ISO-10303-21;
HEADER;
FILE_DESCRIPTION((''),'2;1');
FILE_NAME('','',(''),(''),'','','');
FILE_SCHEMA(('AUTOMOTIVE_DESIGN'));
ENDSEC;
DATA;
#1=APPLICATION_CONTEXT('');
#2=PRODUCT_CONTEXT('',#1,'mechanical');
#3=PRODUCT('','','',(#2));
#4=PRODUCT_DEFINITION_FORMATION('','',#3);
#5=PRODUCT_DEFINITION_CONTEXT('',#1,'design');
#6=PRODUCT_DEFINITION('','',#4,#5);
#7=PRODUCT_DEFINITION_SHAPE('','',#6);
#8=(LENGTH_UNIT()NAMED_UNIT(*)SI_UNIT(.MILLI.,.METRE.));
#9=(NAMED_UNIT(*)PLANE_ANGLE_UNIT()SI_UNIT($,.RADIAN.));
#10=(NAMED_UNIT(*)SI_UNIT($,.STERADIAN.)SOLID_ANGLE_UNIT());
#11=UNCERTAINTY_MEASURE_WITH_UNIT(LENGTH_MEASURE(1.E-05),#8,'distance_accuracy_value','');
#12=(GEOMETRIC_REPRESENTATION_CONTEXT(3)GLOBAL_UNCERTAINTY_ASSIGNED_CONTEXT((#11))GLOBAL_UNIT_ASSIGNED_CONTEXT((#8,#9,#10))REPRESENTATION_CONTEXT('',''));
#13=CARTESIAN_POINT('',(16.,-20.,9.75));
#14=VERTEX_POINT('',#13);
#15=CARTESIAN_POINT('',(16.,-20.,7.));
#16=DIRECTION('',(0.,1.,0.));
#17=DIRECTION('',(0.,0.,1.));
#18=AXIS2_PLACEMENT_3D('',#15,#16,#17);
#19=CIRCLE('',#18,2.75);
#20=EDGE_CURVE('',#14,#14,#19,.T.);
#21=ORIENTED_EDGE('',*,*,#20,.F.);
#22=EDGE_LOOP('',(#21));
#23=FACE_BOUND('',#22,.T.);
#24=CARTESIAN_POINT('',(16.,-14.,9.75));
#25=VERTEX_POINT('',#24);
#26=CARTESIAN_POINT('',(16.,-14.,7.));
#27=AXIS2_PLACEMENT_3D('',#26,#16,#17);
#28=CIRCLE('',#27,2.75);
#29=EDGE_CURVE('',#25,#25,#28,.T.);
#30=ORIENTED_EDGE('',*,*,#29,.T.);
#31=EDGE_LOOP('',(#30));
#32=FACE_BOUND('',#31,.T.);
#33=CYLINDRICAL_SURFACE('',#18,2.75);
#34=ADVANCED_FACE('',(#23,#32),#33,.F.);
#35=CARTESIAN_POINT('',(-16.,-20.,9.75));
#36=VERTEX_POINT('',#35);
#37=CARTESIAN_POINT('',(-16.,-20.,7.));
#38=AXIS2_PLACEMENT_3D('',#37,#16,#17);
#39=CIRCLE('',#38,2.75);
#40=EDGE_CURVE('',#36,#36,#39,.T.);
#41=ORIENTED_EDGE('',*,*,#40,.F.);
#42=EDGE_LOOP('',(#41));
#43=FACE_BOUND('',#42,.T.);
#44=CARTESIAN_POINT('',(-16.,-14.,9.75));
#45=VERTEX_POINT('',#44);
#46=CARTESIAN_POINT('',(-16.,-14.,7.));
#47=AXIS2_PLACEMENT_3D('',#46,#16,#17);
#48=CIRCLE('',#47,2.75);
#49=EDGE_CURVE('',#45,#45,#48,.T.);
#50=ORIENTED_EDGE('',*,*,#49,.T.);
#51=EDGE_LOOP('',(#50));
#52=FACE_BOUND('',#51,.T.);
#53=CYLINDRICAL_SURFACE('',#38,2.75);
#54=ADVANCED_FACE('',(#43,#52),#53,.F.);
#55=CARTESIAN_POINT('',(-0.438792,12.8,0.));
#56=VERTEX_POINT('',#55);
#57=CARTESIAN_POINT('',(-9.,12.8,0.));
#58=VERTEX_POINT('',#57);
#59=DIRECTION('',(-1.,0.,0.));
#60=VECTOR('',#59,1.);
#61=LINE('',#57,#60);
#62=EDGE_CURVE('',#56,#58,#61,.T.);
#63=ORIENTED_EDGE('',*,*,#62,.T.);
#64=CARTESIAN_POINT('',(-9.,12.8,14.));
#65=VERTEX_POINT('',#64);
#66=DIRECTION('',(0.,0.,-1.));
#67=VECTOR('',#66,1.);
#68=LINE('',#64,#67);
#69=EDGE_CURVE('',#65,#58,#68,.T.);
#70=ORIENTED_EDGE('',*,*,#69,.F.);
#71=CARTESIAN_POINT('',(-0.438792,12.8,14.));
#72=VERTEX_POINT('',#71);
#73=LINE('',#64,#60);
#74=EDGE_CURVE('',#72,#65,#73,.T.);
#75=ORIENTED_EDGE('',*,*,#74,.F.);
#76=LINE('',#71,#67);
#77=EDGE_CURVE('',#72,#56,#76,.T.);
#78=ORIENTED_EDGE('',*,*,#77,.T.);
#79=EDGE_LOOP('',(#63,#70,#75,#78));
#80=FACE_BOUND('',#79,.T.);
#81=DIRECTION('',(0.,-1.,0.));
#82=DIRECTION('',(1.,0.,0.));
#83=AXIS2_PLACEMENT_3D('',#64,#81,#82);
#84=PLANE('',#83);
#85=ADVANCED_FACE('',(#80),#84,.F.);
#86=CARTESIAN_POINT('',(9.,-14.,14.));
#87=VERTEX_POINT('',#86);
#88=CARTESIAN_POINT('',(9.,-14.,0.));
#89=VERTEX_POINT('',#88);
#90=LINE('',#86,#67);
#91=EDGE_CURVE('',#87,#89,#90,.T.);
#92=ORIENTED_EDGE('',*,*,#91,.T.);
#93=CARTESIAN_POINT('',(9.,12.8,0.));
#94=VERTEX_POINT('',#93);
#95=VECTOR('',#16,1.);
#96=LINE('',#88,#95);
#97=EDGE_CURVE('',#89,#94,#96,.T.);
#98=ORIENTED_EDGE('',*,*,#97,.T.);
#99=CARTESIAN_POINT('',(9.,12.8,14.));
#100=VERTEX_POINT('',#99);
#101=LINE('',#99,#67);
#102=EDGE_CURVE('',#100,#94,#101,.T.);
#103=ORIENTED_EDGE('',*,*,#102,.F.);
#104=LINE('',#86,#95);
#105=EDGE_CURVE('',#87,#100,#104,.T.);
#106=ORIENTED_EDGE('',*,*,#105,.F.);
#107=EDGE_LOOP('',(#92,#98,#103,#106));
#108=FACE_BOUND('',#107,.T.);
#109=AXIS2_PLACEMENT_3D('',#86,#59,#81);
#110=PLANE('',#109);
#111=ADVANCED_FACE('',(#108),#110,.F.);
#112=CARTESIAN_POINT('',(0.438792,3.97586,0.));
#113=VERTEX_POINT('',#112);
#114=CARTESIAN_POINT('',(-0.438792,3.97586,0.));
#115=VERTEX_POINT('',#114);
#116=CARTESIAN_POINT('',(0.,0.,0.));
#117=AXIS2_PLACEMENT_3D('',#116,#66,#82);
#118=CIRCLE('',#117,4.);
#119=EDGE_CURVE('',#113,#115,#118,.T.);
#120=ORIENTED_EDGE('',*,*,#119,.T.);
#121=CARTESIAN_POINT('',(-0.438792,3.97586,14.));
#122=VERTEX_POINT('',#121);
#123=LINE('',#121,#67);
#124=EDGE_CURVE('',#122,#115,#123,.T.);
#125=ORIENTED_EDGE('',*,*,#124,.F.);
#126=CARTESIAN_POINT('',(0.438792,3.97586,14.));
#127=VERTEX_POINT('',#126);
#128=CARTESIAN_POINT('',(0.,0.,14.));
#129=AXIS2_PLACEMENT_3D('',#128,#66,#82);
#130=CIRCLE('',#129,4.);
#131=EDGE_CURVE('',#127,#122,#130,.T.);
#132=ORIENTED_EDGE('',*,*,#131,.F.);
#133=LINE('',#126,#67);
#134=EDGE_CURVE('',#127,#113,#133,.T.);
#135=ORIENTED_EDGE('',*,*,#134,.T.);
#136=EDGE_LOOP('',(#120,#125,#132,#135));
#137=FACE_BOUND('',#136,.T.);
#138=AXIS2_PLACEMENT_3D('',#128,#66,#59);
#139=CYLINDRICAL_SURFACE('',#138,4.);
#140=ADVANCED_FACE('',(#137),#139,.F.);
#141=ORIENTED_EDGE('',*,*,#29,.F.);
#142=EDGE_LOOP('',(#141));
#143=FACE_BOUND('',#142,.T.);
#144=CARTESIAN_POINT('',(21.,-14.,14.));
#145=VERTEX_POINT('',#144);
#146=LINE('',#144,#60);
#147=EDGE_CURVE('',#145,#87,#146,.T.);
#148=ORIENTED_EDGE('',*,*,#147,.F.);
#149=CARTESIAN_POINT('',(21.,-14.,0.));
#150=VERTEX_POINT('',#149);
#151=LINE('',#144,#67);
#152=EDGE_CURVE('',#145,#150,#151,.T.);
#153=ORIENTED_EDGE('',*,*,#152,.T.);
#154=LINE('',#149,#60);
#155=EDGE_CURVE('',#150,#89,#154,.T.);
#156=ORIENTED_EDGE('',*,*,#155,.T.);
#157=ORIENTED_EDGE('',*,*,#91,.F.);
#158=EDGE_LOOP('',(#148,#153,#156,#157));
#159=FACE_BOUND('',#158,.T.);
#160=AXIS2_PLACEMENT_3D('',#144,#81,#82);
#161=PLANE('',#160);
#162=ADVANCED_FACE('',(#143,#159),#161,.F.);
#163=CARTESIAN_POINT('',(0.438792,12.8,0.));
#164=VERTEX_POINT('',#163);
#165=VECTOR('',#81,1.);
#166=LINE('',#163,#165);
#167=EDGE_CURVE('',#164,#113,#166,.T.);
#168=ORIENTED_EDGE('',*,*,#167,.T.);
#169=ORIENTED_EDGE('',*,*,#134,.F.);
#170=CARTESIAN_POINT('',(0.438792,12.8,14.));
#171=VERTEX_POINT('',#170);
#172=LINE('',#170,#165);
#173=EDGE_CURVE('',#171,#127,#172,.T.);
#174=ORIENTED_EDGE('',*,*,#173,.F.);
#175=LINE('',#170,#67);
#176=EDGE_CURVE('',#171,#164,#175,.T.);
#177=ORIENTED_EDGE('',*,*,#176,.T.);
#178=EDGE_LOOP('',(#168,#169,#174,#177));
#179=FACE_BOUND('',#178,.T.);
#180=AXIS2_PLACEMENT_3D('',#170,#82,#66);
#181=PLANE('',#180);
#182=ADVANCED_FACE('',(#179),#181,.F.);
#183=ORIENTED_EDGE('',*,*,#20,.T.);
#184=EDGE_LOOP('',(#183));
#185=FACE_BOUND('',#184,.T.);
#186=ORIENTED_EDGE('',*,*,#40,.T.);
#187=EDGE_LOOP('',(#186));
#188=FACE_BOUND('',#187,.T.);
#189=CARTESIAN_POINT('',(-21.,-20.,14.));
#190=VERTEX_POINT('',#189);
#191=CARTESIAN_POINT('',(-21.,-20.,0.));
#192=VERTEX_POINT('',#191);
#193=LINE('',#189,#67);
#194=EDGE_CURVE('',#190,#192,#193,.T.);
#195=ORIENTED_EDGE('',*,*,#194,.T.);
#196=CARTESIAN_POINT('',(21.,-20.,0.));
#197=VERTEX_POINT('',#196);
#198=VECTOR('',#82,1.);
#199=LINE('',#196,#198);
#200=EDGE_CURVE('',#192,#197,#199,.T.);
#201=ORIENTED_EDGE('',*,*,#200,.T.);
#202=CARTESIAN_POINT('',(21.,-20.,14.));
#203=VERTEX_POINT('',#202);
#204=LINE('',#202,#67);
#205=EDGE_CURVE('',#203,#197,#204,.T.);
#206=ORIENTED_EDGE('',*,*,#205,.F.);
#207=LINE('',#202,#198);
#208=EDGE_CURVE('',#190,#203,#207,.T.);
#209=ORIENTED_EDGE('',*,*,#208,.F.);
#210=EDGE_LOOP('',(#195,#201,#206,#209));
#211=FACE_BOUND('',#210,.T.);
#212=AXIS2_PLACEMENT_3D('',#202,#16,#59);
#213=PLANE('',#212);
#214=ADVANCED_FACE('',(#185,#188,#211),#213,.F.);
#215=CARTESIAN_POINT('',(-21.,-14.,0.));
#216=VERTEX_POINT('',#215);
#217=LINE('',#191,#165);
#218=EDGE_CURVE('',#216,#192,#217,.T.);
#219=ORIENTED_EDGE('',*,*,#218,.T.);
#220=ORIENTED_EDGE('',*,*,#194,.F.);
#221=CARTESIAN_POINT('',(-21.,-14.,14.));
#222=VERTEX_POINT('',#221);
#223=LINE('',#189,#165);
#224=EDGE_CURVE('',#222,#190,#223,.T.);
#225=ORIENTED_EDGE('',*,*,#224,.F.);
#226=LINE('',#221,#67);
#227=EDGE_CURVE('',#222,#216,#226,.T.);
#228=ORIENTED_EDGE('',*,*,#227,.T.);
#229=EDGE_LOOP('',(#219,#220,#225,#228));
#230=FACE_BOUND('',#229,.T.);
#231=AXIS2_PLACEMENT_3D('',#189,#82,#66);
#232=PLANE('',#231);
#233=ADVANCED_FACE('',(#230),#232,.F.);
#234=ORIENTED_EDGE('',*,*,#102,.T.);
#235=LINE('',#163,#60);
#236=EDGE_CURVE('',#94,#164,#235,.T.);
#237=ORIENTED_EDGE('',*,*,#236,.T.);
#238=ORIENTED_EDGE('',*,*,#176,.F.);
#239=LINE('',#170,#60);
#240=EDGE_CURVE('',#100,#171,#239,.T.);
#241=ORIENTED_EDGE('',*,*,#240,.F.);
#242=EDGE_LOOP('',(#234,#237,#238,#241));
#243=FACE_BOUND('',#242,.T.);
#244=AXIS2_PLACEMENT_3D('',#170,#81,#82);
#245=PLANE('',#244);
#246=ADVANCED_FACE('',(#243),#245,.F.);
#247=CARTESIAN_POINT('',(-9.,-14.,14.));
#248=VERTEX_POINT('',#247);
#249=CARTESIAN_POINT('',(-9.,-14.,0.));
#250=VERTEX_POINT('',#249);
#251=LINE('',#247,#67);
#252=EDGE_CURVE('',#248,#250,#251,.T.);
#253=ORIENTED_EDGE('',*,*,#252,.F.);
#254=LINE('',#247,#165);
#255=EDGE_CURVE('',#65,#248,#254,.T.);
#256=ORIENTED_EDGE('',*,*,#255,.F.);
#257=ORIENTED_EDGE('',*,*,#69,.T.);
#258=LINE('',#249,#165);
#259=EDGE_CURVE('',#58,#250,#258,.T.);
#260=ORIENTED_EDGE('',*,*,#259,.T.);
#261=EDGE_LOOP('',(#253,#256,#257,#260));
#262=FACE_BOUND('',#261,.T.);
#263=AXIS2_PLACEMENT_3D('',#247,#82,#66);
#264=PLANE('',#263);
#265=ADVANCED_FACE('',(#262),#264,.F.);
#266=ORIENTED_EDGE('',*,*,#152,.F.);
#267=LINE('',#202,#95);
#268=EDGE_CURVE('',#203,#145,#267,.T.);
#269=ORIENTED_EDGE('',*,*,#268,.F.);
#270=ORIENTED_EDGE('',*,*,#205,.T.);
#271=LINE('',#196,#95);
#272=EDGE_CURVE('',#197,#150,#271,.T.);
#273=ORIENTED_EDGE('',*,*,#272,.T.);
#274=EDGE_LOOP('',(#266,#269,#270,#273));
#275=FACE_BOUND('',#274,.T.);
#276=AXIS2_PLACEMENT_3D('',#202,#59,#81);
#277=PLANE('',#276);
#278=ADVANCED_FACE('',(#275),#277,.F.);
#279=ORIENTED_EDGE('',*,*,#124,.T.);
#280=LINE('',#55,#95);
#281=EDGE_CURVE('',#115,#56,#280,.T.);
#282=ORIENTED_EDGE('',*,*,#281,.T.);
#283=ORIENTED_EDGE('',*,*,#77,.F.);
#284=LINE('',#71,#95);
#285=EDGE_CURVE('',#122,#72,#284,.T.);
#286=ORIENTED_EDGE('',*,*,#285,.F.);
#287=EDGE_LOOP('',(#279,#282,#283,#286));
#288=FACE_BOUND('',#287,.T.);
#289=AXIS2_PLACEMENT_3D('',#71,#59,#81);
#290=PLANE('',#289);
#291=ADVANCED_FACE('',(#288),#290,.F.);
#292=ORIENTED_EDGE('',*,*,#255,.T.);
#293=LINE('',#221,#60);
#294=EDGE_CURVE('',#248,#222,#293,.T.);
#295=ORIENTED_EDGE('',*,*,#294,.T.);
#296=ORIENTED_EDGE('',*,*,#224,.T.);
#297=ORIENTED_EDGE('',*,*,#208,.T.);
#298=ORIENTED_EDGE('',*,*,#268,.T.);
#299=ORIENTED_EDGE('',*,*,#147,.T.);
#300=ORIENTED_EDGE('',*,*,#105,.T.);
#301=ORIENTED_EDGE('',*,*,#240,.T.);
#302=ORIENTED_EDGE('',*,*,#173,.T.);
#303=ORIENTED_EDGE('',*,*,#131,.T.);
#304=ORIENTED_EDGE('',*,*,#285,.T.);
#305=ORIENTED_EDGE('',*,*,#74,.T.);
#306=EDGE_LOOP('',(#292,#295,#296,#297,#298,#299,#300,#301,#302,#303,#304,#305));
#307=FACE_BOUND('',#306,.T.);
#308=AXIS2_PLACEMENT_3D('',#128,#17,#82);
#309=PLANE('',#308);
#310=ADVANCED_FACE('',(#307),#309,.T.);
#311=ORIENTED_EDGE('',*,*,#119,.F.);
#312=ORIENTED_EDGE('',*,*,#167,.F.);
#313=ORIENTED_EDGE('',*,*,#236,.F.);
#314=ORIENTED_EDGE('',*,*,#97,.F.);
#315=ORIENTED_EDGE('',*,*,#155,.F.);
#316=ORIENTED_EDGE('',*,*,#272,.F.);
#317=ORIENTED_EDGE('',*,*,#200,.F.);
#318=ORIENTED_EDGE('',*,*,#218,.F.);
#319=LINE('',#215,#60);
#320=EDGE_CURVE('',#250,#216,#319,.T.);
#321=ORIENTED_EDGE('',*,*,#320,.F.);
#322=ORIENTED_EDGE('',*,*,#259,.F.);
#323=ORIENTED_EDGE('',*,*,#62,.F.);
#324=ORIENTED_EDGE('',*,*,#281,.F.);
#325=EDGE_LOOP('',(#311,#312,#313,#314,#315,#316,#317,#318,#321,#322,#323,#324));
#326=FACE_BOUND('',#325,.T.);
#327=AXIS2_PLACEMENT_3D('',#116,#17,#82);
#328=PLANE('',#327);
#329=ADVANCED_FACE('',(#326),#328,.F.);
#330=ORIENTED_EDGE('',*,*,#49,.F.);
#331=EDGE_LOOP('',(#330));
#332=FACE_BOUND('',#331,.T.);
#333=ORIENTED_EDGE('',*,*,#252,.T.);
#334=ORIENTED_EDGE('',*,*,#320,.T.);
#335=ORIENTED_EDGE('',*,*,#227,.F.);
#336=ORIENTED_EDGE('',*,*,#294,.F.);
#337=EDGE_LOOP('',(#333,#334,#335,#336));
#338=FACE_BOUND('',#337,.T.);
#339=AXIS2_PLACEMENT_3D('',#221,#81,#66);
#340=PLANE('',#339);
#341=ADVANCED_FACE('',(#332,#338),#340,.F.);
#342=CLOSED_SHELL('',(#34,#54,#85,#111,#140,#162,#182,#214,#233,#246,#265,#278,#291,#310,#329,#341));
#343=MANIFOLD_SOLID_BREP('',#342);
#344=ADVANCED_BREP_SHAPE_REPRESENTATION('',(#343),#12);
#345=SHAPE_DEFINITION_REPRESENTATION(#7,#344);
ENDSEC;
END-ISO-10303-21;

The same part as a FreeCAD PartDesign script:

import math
import FreeCAD as App
import Part
import Sketcher

V = App.Vector
Q = App.Units.Quantity

doc = App.newDocument("Part")
body = doc.addObject("PartDesign::Body", "Body")

sketch1 = doc.addObject("Sketcher::SketchObject", "Sketch")
body.addObject(sketch1)
sketch1.AttachmentSupport = (doc.XY_Plane, [""])
sketch1.MapMode = "FlatFace"
sketch1.addGeometry(Part.LineSegment(V(-21, -20, 0), V(21, -20, 0)), False)
sketch1.addGeometry(Part.LineSegment(V(21, -20, 0), V(21, -14, 0)), False)
sketch1.addGeometry(Part.LineSegment(V(21, -14, 0), V(9, -14, 0)), False)
sketch1.addGeometry(Part.LineSegment(V(9, -14, 0), V(9, 12.8, 0)), False)
sketch1.addGeometry(Part.LineSegment(V(9, 12.8, 0), V(0.4, 12.8, 0)), False)
sketch1.addGeometry(Part.LineSegment(V(0.4, 12.8, 0), V(0.4, 4, 0)), False)
sketch1.addGeometry(Part.ArcOfCircle(Part.Circle(V(0, 0, 0), V(0, 0, 1), 4), math.radians(96), math.radians(444)), False)
sketch1.addGeometry(Part.LineSegment(V(-0.4, 4, 0), V(-0.4, 12.8, 0)), False)
sketch1.addGeometry(Part.LineSegment(V(-0.4, 12.8, 0), V(-9, 12.8, 0)), False)
sketch1.addGeometry(Part.LineSegment(V(-9, 12.8, 0), V(-9, -14, 0)), False)
sketch1.addGeometry(Part.LineSegment(V(-9, -14, 0), V(-21, -14, 0)), False)
sketch1.addGeometry(Part.LineSegment(V(-21, -14, 0), V(-21, -20, 0)), False)
sketch1.addConstraint(Sketcher.Constraint("Coincident", 0, 2, 1, 1))
sketch1.addConstraint(Sketcher.Constraint("Coincident", 1, 2, 2, 1))
sketch1.addConstraint(Sketcher.Constraint("Coincident", 2, 2, 3, 1))
sketch1.addConstraint(Sketcher.Constraint("Coincident", 3, 2, 4, 1))
sketch1.addConstraint(Sketcher.Constraint("Coincident", 4, 2, 5, 1))
sketch1.addConstraint(Sketcher.Constraint("Coincident", 5, 2, 6, 2))
sketch1.addConstraint(Sketcher.Constraint("Coincident", 6, 1, 7, 1))
sketch1.addConstraint(Sketcher.Constraint("Coincident", 7, 2, 8, 1))
sketch1.addConstraint(Sketcher.Constraint("Coincident", 8, 2, 9, 1))
sketch1.addConstraint(Sketcher.Constraint("Coincident", 9, 2, 10, 1))
sketch1.addConstraint(Sketcher.Constraint("Coincident", 10, 2, 11, 1))
sketch1.addConstraint(Sketcher.Constraint("Coincident", 11, 2, 0, 1))
sketch1.addConstraint(Sketcher.Constraint("Horizontal", 0))
sketch1.addConstraint(Sketcher.Constraint("Vertical", 1))
sketch1.addConstraint(Sketcher.Constraint("Horizontal", 2))
sketch1.addConstraint(Sketcher.Constraint("Vertical", 3))
sketch1.addConstraint(Sketcher.Constraint("Horizontal", 4))
sketch1.addConstraint(Sketcher.Constraint("Vertical", 5))
sketch1.addConstraint(Sketcher.Constraint("Vertical", 7))
sketch1.addConstraint(Sketcher.Constraint("Horizontal", 8))
sketch1.addConstraint(Sketcher.Constraint("Vertical", 9))
sketch1.addConstraint(Sketcher.Constraint("Horizontal", 10))
sketch1.addConstraint(Sketcher.Constraint("Vertical", 11))
sketch1.addConstraint(Sketcher.Constraint("Coincident", 6, 3, -1, 1))
sketch1.addConstraint(Sketcher.Constraint("Symmetric", 4, 2, 7, 2, -2))
sketch1.addConstraint(Sketcher.Constraint("Symmetric", 2, 2, 9, 2, -2))
sketch1.addConstraint(Sketcher.Constraint("Equal", 2, 10))
sketch1.addConstraint(Sketcher.Constraint("Radius", 6, Q("4 mm")))
sketch1.addConstraint(Sketcher.Constraint("DistanceX", 0, 1, 0, 2, Q("42 mm")))
sketch1.addConstraint(Sketcher.Constraint("DistanceX", 2, 2, 2, 1, Q("12 mm")))
sketch1.addConstraint(Sketcher.Constraint("DistanceY", 1, 1, 1, 2, Q("6 mm")))
sketch1.addConstraint(Sketcher.Constraint("DistanceY", 3, 1, 3, 2, Q("26.8 mm")))
sketch1.addConstraint(Sketcher.Constraint("DistanceY", 0, 2, -1, 1, Q("20 mm")))
sketch1.addConstraint(Sketcher.Constraint("DistanceX", 4, 2, 4, 1, Q("8.561208 mm")))
pad1 = doc.addObject("PartDesign::Pad", "Pad")
body.addObject(pad1)
pad1.Profile = sketch1
pad1.Length = 14

sketch2 = doc.addObject("Sketcher::SketchObject", "Sketch001")
body.addObject(sketch2)
sketch2.AttachmentSupport = (doc.XZ_Plane, [""])
sketch2.MapMode = "FlatFace"
sketch2.AttachmentOffset = App.Placement(V(0, 0, 14), App.Rotation())
sketch2.addGeometry(Part.Circle(V(-16, 7, 0), V(0, 0, 1), 2.8), False)
sketch2.addGeometry(Part.Circle(V(16, 7, 0), V(0, 0, 1), 2.8), False)
sketch2.addConstraint(Sketcher.Constraint("Equal", 0, 1))
sketch2.addConstraint(Sketcher.Constraint("Symmetric", 0, 3, 1, 3, -2))
sketch2.addConstraint(Sketcher.Constraint("Diameter", 0, Q("5.5 mm")))
sketch2.addConstraint(Sketcher.Constraint("DistanceX", 0, 3, -1, 1, Q("16 mm")))
sketch2.addConstraint(Sketcher.Constraint("DistanceY", -1, 1, 0, 3, Q("7 mm")))
pocket1 = doc.addObject("PartDesign::Pocket", "Pocket")
body.addObject(pocket1)
pocket1.Profile = sketch2
pocket1.Type = "ThroughAll"
pocket1.Reversed = True

doc.recompute()
